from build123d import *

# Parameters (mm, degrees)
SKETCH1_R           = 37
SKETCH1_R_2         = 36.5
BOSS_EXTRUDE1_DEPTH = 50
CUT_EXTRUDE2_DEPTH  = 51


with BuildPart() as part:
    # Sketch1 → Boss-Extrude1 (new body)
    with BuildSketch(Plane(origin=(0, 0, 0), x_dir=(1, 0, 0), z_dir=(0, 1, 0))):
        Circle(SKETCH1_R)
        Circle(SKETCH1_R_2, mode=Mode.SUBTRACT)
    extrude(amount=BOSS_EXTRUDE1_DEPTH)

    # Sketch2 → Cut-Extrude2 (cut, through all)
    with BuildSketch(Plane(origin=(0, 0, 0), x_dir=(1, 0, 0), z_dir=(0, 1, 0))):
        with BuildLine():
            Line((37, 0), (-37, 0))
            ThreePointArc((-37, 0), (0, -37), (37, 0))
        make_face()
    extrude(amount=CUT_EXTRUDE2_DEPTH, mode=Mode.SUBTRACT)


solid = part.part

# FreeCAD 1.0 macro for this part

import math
import FreeCAD as App
import Part
import Sketcher

V = App.Vector
Q = App.Units.Quantity

doc = App.newDocument("Part")
params = doc.addObject("Spreadsheet::Sheet", "Params")
for row, (alias, value) in enumerate([
    ("sketch1_diameter", "74 mm"),
    ("sketch1_diameter2", "73 mm"),
    ("pad1_length", "50 mm"),
    ("sketch2_radius", "37 mm"),
], start=1):
    params.set(f"A{row}", alias)
    params.set(f"B{row}", "=" + value)
    params.setAlias(f"B{row}", alias)

body = doc.addObject("PartDesign::Body", "Body")

# Sketch on XZ plane
sketch1 = body.newObject("Sketcher::SketchObject", "Sketch")
sketch1.AttachmentSupport = (doc.getObject("XZ_Plane"), [""])
sketch1.MapMode = "FlatFace"
sketch1.addGeometry(Part.Circle(V(0, 0, 0), V(0, 0, 1), 37), False)
sketch1.addGeometry(Part.Circle(V(0, 0, 0), V(0, 0, 1), 36), False)
sketch1.addConstraint(Sketcher.Constraint("Coincident", 0, 3, -1, 1))
sketch1.addConstraint(Sketcher.Constraint("Coincident", 1, 3, -1, 1))
sketch1.addConstraint(Sketcher.Constraint("Diameter", 0, Q("74 mm")))
sketch1.addConstraint(Sketcher.Constraint("Diameter", 1, Q("73 mm")))
sketch1.setExpression("Constraints[2]", "Params.sketch1_diameter")
sketch1.setExpression("Constraints[3]", "Params.sketch1_diameter2")
pad1 = body.newObject("PartDesign::Pad", "Pad")
pad1.Profile = sketch1
pad1.setExpression("Length", "Params.pad1_length")
pad1.Reversed = True

# Sketch on XZ plane
sketch2 = body.newObject("Sketcher::SketchObject", "Sketch001")
sketch2.AttachmentSupport = (doc.getObject("XZ_Plane"), [""])
sketch2.MapMode = "FlatFace"
sketch2.addGeometry(Part.LineSegment(V(37, 0, 0), V(-37, 0, 0)), False)
sketch2.addGeometry(Part.ArcOfCircle(Part.Circle(V(0, 0, 0), V(0, 0, 1), 37), math.radians(0), math.radians(180)), False)
sketch2.addConstraint(Sketcher.Constraint("Coincident", 0, 1, 1, 1))
sketch2.addConstraint(Sketcher.Constraint("Coincident", 1, 2, 0, 2))
sketch2.addConstraint(Sketcher.Constraint("Horizontal", 0))
sketch2.addConstraint(Sketcher.Constraint("Coincident", 1, 3, -1, 1))
sketch2.addConstraint(Sketcher.Constraint("PointOnObject", 0, 1, -1))
sketch2.addConstraint(Sketcher.Constraint("Radius", 1, Q("37 mm")))
sketch2.setExpression("Constraints[5]", "Params.sketch2_radius")
pocket1 = body.newObject("PartDesign::Pocket", "Pocket")
pocket1.Profile = sketch2
pocket1.Type = "ThroughAll"

doc.recompute()
